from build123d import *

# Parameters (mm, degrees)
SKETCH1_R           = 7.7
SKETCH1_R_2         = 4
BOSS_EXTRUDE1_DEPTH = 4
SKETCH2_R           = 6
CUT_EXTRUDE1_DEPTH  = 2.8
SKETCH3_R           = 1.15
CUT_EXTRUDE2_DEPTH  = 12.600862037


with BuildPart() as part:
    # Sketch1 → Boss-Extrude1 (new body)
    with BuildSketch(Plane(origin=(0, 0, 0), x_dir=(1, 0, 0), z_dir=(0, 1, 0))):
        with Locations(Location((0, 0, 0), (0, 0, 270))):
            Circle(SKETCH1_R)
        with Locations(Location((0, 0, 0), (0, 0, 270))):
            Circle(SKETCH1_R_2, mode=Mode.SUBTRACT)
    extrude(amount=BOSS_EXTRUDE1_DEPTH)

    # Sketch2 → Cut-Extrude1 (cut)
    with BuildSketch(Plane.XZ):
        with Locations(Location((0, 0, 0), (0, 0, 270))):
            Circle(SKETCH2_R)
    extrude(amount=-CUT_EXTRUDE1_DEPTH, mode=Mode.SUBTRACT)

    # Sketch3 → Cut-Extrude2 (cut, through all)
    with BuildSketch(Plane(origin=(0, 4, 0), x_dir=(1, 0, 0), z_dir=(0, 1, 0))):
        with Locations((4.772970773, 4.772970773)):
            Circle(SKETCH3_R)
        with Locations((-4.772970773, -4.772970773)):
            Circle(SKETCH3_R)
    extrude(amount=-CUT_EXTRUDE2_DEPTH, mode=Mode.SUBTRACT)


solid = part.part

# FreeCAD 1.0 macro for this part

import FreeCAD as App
import Part
import Sketcher
from FreeCAD import Vector
Q = App.Units.Quantity

doc = App.newDocument("Part")
body = doc.addObject("PartDesign::Body", "Body")

# Sketch on XZ plane
sketch1 = body.newObject("Sketcher::SketchObject", "Sketch")
sketch1.AttachmentSupport = (doc.getObject("XZ_Plane"), [""])
sketch1.MapMode = "FlatFace"
sketch1.addGeometry([
    Part.Circle(Vector(0, 0, 0), Vector(0, 0, 1), 7.7),
    Part.Circle(Vector(0, 0, 0), Vector(0, 0, 1), 4),
], False)
sketch1.addConstraint([
    Sketcher.Constraint("Coincident", 0, 3, -1, 1),
    Sketcher.Constraint("Coincident", 1, 3, -1, 1),
    Sketcher.Constraint("Diameter", 1, Q("8 mm")),
    Sketcher.Constraint("Diameter", 0, Q("15.4 mm")),
])
pad1 = body.newObject("PartDesign::Pad", "Pad")
pad1.Profile = sketch1
pad1.Length = 4
pad1.Reversed = True

# Sketch on XZ plane
sketch2 = body.newObject("Sketcher::SketchObject", "Sketch001")
sketch2.AttachmentSupport = (doc.getObject("XZ_Plane"), [""])
sketch2.MapMode = "FlatFace"
sketch2.addGeometry(Part.Circle(Vector(0, 0, 0), Vector(0, 0, 1), 6), False)
sketch2.addConstraint([
    Sketcher.Constraint("Coincident", 0, 3, -1, 1),
    Sketcher.Constraint("Diameter", 0, Q("12 mm")),
])
pocket1 = body.newObject("PartDesign::Pocket", "Pocket")
pocket1.Profile = sketch2
pocket1.Length = 2.8

# Sketch on XZ plane
sketch3 = body.newObject("Sketcher::SketchObject", "Sketch002")
sketch3.AttachmentSupport = (doc.getObject("XZ_Plane"), [""])
sketch3.MapMode = "FlatFace"
sketch3.AttachmentOffset = App.Placement(Vector(0, 0, -4), App.Rotation())
sketch3.addGeometry([
    Part.Circle(Vector(4.772971, -4.772971, 0), Vector(0, 0, 1), 1.15),
    Part.Circle(Vector(-4.772971, 4.772971, 0), Vector(0, 0, 1), 1.15),
], False)
sketch3.addConstraint([
    Sketcher.Constraint("Equal", 0, 1),
    Sketcher.Constraint("Symmetric", 0, 3, 1, 3, -1, 1),
    Sketcher.Constraint("Diameter", 0, Q("2.3 mm")),
    Sketcher.Constraint("DistanceX", -1, 1, 0, 3, Q("4.772971 mm")),
    Sketcher.Constraint("DistanceY", 0, 3, -1, 1, Q("4.772971 mm")),
])
pocket2 = body.newObject("PartDesign::Pocket", "Pocket001")
pocket2.Profile = sketch3
pocket2.Type = "ThroughAll"
pocket2.Reversed = True

doc.recompute()
